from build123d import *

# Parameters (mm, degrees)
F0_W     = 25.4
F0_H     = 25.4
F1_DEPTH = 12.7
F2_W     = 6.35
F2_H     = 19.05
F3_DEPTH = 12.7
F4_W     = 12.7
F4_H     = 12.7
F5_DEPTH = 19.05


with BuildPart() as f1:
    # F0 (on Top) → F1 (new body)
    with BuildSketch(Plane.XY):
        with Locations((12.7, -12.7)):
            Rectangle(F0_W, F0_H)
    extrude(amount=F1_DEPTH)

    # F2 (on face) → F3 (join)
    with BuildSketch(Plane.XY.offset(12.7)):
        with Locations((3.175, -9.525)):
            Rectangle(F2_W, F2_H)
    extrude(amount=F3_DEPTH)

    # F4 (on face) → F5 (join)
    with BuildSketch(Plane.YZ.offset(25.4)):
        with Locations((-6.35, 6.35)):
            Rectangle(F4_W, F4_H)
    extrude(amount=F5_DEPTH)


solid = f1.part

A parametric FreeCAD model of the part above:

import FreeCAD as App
import Part
import Sketcher
from FreeCAD import Vector
Q = App.Units.Quantity


def add_polygon(sketch, points):
    """Adds a closed chain of lines whose ends are joined by coincident constraints."""
    first, n = sketch.GeometryCount, len(points)
    for a, b in zip(points, points[1:] + points[:1]):
        sketch.addGeometry(Part.LineSegment(App.Vector(*a, 0), App.Vector(*b, 0)), False)
    for i in range(n):
        sketch.addConstraint(Sketcher.Constraint("Coincident", first + i, 2, first + (i + 1) % n, 1))

doc = App.newDocument("Part")
body = doc.addObject("PartDesign::Body", "Body")

# Sketch on XY plane
sketch1 = body.newObject("Sketcher::SketchObject", "Sketch")
sketch1.AttachmentSupport = (doc.getObject("XY_Plane"), [""])
sketch1.MapMode = "FlatFace"
add_polygon(sketch1, [(0, 0), (0, -25), (25, -25), (25, 0)])  # lines 0-3
sketch1.addConstraint([
    Sketcher.Constraint("Vertical", 0),
    Sketcher.Constraint("Horizontal", 1),
    Sketcher.Constraint("Vertical", 2),
    Sketcher.Constraint("Horizontal", 3),
    Sketcher.Constraint("Coincident", 3, 2, -1, 1),
    Sketcher.Constraint("Equal", 3, 0),
    Sketcher.Constraint("DistanceX", 1, 1, 1, 2, Q("1 in")),
])
pad1 = body.newObject("PartDesign::Pad", "Pad")
pad1.Profile = sketch1
pad1.Length = Q("0.5 in")

# Sketch on XY plane
sketch2 = body.newObject("Sketcher::SketchObject", "Sketch001")
sketch2.AttachmentSupport = (doc.getObject("XY_Plane"), [""])
sketch2.MapMode = "FlatFace"
sketch2.AttachmentOffset = App.Placement(Vector(0, 0, 0.5 * 25.4), App.Rotation())
add_polygon(sketch2, [(0, 0), (0, -19), (6, -19), (6, 0)])  # lines 0-3
sketch2.addConstraint([
    Sketcher.Constraint("Vertical", 0),
    Sketcher.Constraint("Horizontal", 1),
    Sketcher.Constraint("Vertical", 2),
    Sketcher.Constraint("Horizontal", 3),
    Sketcher.Constraint("Coincident", 3, 2, -1, 1),
    Sketcher.Constraint("DistanceX", 1, 1, 1, 2, Q("0.25 in")),
    Sketcher.Constraint("DistanceY", 0, 2, 0, 1, Q("0.75 in")),
])
pad2 = body.newObject("PartDesign::Pad", "Pad001")
pad2.Profile = sketch2
pad2.Length = Q("0.5 in")

# Sketch on YZ plane
sketch3 = body.newObject("Sketcher::SketchObject", "Sketch002")
sketch3.AttachmentSupport = (doc.getObject("YZ_Plane"), [""])
sketch3.MapMode = "FlatFace"
sketch3.AttachmentOffset = App.Placement(Vector(0, 0, 1 * 25.4), App.Rotation())
add_polygon(sketch3, [(-13, 13), (-13, 0), (0, 0), (0, 13)])  # lines 0-3
sketch3.addConstraint([
    Sketcher.Constraint("Vertical", 0),
    Sketcher.Constraint("Horizontal", 1),
    Sketcher.Constraint("Vertical", 2),
    Sketcher.Constraint("Horizontal", 3),
    Sketcher.Constraint("Coincident", 1, 2, -1, 1),
    Sketcher.Constraint("Equal", 3, 0),
    Sketcher.Constraint("DistanceX", 1, 1, 1, 2, Q("0.5 in")),
])
pad3 = body.newObject("PartDesign::Pad", "Pad002")
pad3.Profile = sketch3
pad3.Length = Q("0.75 in")

doc.recompute()
